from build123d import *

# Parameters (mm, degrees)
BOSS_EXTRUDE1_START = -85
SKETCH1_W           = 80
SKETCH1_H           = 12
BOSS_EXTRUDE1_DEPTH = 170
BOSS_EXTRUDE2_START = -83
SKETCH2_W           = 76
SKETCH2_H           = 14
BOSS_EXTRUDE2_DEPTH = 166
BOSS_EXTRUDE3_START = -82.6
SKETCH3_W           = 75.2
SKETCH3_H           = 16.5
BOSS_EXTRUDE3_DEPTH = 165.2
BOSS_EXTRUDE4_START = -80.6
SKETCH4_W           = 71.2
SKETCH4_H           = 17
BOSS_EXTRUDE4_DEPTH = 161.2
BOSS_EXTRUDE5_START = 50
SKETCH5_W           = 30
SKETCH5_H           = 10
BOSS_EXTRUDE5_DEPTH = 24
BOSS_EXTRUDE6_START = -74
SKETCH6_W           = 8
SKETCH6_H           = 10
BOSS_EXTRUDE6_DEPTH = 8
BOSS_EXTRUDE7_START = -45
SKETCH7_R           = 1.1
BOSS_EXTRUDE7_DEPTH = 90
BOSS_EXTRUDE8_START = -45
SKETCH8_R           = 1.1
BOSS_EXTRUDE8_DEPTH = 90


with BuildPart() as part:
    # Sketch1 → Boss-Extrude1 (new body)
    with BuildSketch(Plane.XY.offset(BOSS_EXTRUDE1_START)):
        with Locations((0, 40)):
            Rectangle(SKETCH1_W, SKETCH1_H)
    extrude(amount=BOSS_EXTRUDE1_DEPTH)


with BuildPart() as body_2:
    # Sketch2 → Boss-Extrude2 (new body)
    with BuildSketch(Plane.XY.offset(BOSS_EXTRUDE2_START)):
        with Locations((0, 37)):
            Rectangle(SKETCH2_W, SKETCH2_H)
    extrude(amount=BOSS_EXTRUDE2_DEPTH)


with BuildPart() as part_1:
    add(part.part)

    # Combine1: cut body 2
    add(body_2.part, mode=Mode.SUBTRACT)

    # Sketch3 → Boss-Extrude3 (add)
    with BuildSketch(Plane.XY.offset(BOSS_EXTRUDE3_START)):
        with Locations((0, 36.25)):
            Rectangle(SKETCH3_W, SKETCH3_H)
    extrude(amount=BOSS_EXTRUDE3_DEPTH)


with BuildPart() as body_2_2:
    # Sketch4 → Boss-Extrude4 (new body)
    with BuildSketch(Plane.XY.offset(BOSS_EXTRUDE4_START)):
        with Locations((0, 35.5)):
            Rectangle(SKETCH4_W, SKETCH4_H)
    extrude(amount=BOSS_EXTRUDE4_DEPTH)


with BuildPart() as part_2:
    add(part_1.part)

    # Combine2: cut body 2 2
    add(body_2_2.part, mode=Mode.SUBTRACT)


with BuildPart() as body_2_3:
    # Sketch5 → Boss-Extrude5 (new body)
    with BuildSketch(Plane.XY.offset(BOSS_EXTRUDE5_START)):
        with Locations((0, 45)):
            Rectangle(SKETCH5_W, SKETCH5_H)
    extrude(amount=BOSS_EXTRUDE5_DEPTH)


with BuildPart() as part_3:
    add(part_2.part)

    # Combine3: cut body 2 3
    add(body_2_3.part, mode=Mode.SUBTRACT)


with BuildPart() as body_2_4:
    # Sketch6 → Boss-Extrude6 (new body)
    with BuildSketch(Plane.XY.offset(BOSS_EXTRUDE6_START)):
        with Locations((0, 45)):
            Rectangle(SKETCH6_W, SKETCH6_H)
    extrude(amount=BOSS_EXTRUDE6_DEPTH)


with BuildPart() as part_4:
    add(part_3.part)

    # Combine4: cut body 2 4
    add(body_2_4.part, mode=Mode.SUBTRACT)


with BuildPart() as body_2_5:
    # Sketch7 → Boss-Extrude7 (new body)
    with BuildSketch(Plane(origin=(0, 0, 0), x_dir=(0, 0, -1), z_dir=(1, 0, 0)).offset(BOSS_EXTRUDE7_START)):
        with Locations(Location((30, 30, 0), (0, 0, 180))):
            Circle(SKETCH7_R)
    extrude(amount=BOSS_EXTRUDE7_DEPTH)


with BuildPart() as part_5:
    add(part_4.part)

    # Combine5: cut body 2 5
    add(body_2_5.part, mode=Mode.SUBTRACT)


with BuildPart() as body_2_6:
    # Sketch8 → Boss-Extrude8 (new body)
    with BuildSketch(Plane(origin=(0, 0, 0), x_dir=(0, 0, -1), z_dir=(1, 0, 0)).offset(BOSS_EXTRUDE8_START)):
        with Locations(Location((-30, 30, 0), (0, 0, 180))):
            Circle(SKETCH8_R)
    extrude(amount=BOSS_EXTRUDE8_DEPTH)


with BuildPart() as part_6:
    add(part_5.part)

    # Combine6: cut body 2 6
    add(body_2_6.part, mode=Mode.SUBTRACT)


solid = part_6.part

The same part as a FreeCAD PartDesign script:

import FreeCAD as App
import Part
import Sketcher

doc = App.newDocument("Part")
body = doc.addObject("PartDesign::Body", "Body")

sketch1 = body.newObject("Sketcher::SketchObject", "Sketch")
sketch1.AttachmentSupport = (doc.getObject("XY_Plane"), [""])
sketch1.MapMode = "FlatFace"
sketch1.AttachmentOffset = App.Placement(App.Vector(0, 0, -85), App.Rotation())
sketch1.addGeometry([
    Part.LineSegment(App.Vector(-40, 46, 0), App.Vector(-40, 34, 0)),
    Part.LineSegment(App.Vector(-40, 34, 0), App.Vector(40, 34, 0)),
    Part.LineSegment(App.Vector(40, 34, 0), App.Vector(40, 46, 0)),
    Part.LineSegment(App.Vector(40, 46, 0), App.Vector(-40, 46, 0)),
], False)
sketch1.addConstraint([
    Sketcher.Constraint("Coincident", 0, 2, 1, 1),
    Sketcher.Constraint("Coincident", 1, 2, 2, 1),
    Sketcher.Constraint("Coincident", 2, 2, 3, 1),
    Sketcher.Constraint("Coincident", 3, 2, 0, 1),
    Sketcher.Constraint("Vertical", 0),
    Sketcher.Constraint("Horizontal", 1),
    Sketcher.Constraint("Vertical", 2),
    Sketcher.Constraint("Horizontal", 3),
    Sketcher.Constraint("DistanceX", 1, 1, 1, 2, 80.0),
    Sketcher.Constraint("DistanceY", 0, 2, 0, 1, 12.0),
    Sketcher.Constraint("DistanceX", 0, 2, -1, 1, 40.0),
    Sketcher.Constraint("DistanceY", -1, 1, 0, 2, 34.0),
])
pad1 = body.newObject("PartDesign::Pad", "Pad")
pad1.Profile = sketch1
pad1.Length = 170
body2 = doc.addObject("PartDesign::Body", "Body001")

sketch2 = body2.newObject("Sketcher::SketchObject", "Sketch001")
sketch2.AttachmentSupport = (doc.getObject("XY_Plane001"), [""])
sketch2.MapMode = "FlatFace"
sketch2.AttachmentOffset = App.Placement(App.Vector(0, 0, -83), App.Rotation())
sketch2.addGeometry([
    Part.LineSegment(App.Vector(-38, 44, 0), App.Vector(-38, 30, 0)),
    Part.LineSegment(App.Vector(-38, 30, 0), App.Vector(38, 30, 0)),
    Part.LineSegment(App.Vector(38, 30, 0), App.Vector(38, 44, 0)),
    Part.LineSegment(App.Vector(38, 44, 0), App.Vector(-38, 44, 0)),
], False)
sketch2.addConstraint([
    Sketcher.Constraint("Coincident", 0, 2, 1, 1),
    Sketcher.Constraint("Coincident", 1, 2, 2, 1),
    Sketcher.Constraint("Coincident", 2, 2, 3, 1),
    Sketcher.Constraint("Coincident", 3, 2, 0, 1),
    Sketcher.Constraint("Vertical", 0),
    Sketcher.Constraint("Horizontal", 1),
    Sketcher.Constraint("Vertical", 2),
    Sketcher.Constraint("Horizontal", 3),
    Sketcher.Constraint("DistanceX", 1, 1, 1, 2, 76.0),
    Sketcher.Constraint("DistanceY", 0, 2, 0, 1, 14.0),
    Sketcher.Constraint("DistanceX", 0, 2, -1, 1, 38.0),
    Sketcher.Constraint("DistanceY", -1, 1, 0, 2, 30.0),
])
pad2 = body2.newObject("PartDesign::Pad", "Pad001")
pad2.Profile = sketch2
pad2.Length = 166
doc.recompute()

boolean = body.newObject("PartDesign::Boolean", "Boolean")
boolean.Type = "Cut"
boolean.addObjects([body2])

sketch3 = body.newObject("Sketcher::SketchObject", "Sketch002")
sketch3.AttachmentSupport = (doc.getObject("XY_Plane"), [""])
sketch3.MapMode = "FlatFace"
sketch3.AttachmentOffset = App.Placement(App.Vector(0, 0, -82.6), App.Rotation())
sketch3.addGeometry([
    Part.LineSegment(App.Vector(-38, 44, 0), App.Vector(-38, 28, 0)),
    Part.LineSegment(App.Vector(-38, 28, 0), App.Vector(38, 28, 0)),
    Part.LineSegment(App.Vector(38, 28, 0), App.Vector(38, 44, 0)),
    Part.LineSegment(App.Vector(38, 44, 0), App.Vector(-38, 44, 0)),
], False)
sketch3.addConstraint([
    Sketcher.Constraint("Coincident", 0, 2, 1, 1),
    Sketcher.Constraint("Coincident", 1, 2, 2, 1),
    Sketcher.Constraint("Coincident", 2, 2, 3, 1),
    Sketcher.Constraint("Coincident", 3, 2, 0, 1),
    Sketcher.Constraint("Vertical", 0),
    Sketcher.Constraint("Horizontal", 1),
    Sketcher.Constraint("Vertical", 2),
    Sketcher.Constraint("Horizontal", 3),
    Sketcher.Constraint("DistanceX", 1, 1, 1, 2, 75.2),
    Sketcher.Constraint("DistanceY", 0, 2, 0, 1, 16.5),
    Sketcher.Constraint("DistanceY", -1, 1, 0, 2, 28.0),
    Sketcher.Constraint("DistanceX", 0, 2, -1, 1, 37.6),
])
pad3 = body.newObject("PartDesign::Pad", "Pad002")
pad3.Profile = sketch3
pad3.Length = 165.2
body3 = doc.addObject("PartDesign::Body", "Body002")

sketch4 = body3.newObject("Sketcher::SketchObject", "Sketch003")
sketch4.AttachmentSupport = (doc.getObject("XY_Plane002"), [""])
sketch4.MapMode = "FlatFace"
sketch4.AttachmentOffset = App.Placement(App.Vector(0, 0, -80.6), App.Rotation())
sketch4.addGeometry([
    Part.LineSegment(App.Vector(-36, 44, 0), App.Vector(-36, 27, 0)),
    Part.LineSegment(App.Vector(-36, 27, 0), App.Vector(36, 27, 0)),
    Part.LineSegment(App.Vector(36, 27, 0), App.Vector(36, 44, 0)),
    Part.LineSegment(App.Vector(36, 44, 0), App.Vector(-36, 44, 0)),
], False)
sketch4.addConstraint([
    Sketcher.Constraint("Coincident", 0, 2, 1, 1),
    Sketcher.Constraint("Coincident", 1, 2, 2, 1),
    Sketcher.Constraint("Coincident", 2, 2, 3, 1),
    Sketcher.Constraint("Coincident", 3, 2, 0, 1),
    Sketcher.Constraint("Vertical", 0),
    Sketcher.Constraint("Horizontal", 1),
    Sketcher.Constraint("Vertical", 2),
    Sketcher.Constraint("Horizontal", 3),
    Sketcher.Constraint("DistanceY", 0, 2, 0, 1, 17.0),
    Sketcher.Constraint("DistanceX", 1, 1, 1, 2, 71.2),
    Sketcher.Constraint("DistanceY", -1, 1, 0, 2, 27.0),
    Sketcher.Constraint("DistanceX", 0, 2, -1, 1, 35.6),
])
pad4 = body3.newObject("PartDesign::Pad", "Pad003")
pad4.Profile = sketch4
pad4.Length = 161.2
doc.recompute()

boolean2 = body.newObject("PartDesign::Boolean", "Boolean001")
boolean2.Type = "Cut"
boolean2.addObjects([body3])
body4 = doc.addObject("PartDesign::Body", "Body003")

sketch5 = body4.newObject("Sketcher::SketchObject", "Sketch004")
sketch5.AttachmentSupport = (doc.getObject("XY_Plane003"), [""])
sketch5.MapMode = "FlatFace"
sketch5.AttachmentOffset = App.Placement(App.Vector(0, 0, 50), App.Rotation())
sketch5.addGeometry([
    Part.LineSegment(App.Vector(-15, 50, 0), App.Vector(-15, 40, 0)),
    Part.LineSegment(App.Vector(-15, 40, 0), App.Vector(15, 40, 0)),
    Part.LineSegment(App.Vector(15, 40, 0), App.Vector(15, 50, 0)),
    Part.LineSegment(App.Vector(15, 50, 0), App.Vector(-15, 50, 0)),
], False)
sketch5.addConstraint([
    Sketcher.Constraint("Coincident", 0, 2, 1, 1),
    Sketcher.Constraint("Coincident", 1, 2, 2, 1),
    Sketcher.Constraint("Coincident", 2, 2, 3, 1),
    Sketcher.Constraint("Coincident", 3, 2, 0, 1),
    Sketcher.Constraint("Vertical", 0),
    Sketcher.Constraint("Horizontal", 1),
    Sketcher.Constraint("Vertical", 2),
    Sketcher.Constraint("Horizontal", 3),
    Sketcher.Constraint("DistanceX", 1, 1, 1, 2, 30.0),
    Sketcher.Constraint("DistanceY", 0, 2, 0, 1, 10.0),
    Sketcher.Constraint("DistanceX", 0, 2, -1, 1, 15.0),
    Sketcher.Constraint("DistanceY", -1, 1, 0, 2, 40.0),
])
pad5 = body4.newObject("PartDesign::Pad", "Pad004")
pad5.Profile = sketch5
pad5.Length = 24
doc.recompute()

boolean3 = body.newObject("PartDesign::Boolean", "Boolean002")
boolean3.Type = "Cut"
boolean3.addObjects([body4])
body5 = doc.addObject("PartDesign::Body", "Body004")

sketch6 = body5.newObject("Sketcher::SketchObject", "Sketch005")
sketch6.AttachmentSupport = (doc.getObject("XY_Plane004"), [""])
sketch6.MapMode = "FlatFace"
sketch6.AttachmentOffset = App.Placement(App.Vector(0, 0, -74), App.Rotation())
sketch6.addGeometry([
    Part.LineSegment(App.Vector(-4, 50, 0), App.Vector(-4, 40, 0)),
    Part.LineSegment(App.Vector(-4, 40, 0), App.Vector(4, 40, 0)),
    Part.LineSegment(App.Vector(4, 40, 0), App.Vector(4, 50, 0)),
    Part.LineSegment(App.Vector(4, 50, 0), App.Vector(-4, 50, 0)),
], False)
sketch6.addConstraint([
    Sketcher.Constraint("Coincident", 0, 2, 1, 1),
    Sketcher.Constraint("Coincident", 1, 2, 2, 1),
    Sketcher.Constraint("Coincident", 2, 2, 3, 1),
    Sketcher.Constraint("Coincident", 3, 2, 0, 1),
    Sketcher.Constraint("Vertical", 0),
    Sketcher.Constraint("Horizontal", 1),
    Sketcher.Constraint("Vertical", 2),
    Sketcher.Constraint("Horizontal", 3),
    Sketcher.Constraint("DistanceX", 1, 1, 1, 2, 8.0),
    Sketcher.Constraint("DistanceY", 0, 2, 0, 1, 10.0),
    Sketcher.Constraint("DistanceX", 0, 2, -1, 1, 4.0),
    Sketcher.Constraint("DistanceY", -1, 1, 0, 2, 40.0),
])
pad6 = body5.newObject("PartDesign::Pad", "Pad005")
pad6.Profile = sketch6
pad6.Length = 8
doc.recompute()

boolean4 = body.newObject("PartDesign::Boolean", "Boolean003")
boolean4.Type = "Cut"
boolean4.addObjects([body5])
body6 = doc.addObject("PartDesign::Body", "Body005")

sketch7 = body6.newObject("Sketcher::SketchObject", "Sketch006")
sketch7.AttachmentSupport = (doc.getObject("YZ_Plane005"), [""])
sketch7.MapMode = "FlatFace"
sketch7.AttachmentOffset = App.Placement(App.Vector(0, 0, -45), App.Rotation())
sketch7.addGeometry(Part.Circle(App.Vector(30, -30, 0), App.Vector(0, 0, 1), 1.1), False)
sketch7.addConstraint([
    Sketcher.Constraint("Diameter", 0, 2.2),
    Sketcher.Constraint("DistanceX", -1, 1, 0, 3, 30.0),
    Sketcher.Constraint("DistanceY", 0, 3, -1, 1, 30.0),
])
pad7 = body6.newObject("PartDesign::Pad", "Pad006")
pad7.Profile = sketch7
pad7.Length = 90
doc.recompute()

boolean5 = body.newObject("PartDesign::Boolean", "Boolean004")
boolean5.Type = "Cut"
boolean5.addObjects([body6])
body7 = doc.addObject("PartDesign::Body", "Body006")

sketch8 = body7.newObject("Sketcher::SketchObject", "Sketch007")
sketch8.AttachmentSupport = (doc.getObject("YZ_Plane006"), [""])
sketch8.MapMode = "FlatFace"
sketch8.AttachmentOffset = App.Placement(App.Vector(0, 0, -45), App.Rotation())
sketch8.addGeometry(Part.Circle(App.Vector(30, 30, 0), App.Vector(0, 0, 1), 1.1), False)
sketch8.addConstraint([
    Sketcher.Constraint("Diameter", 0, 2.2),
    Sketcher.Constraint("DistanceX", -1, 1, 0, 3, 30.0),
    Sketcher.Constraint("DistanceY", -1, 1, 0, 3, 30.0),
])
pad8 = body7.newObject("PartDesign::Pad", "Pad007")
pad8.Profile = sketch8
pad8.Length = 90
doc.recompute()

boolean6 = body.newObject("PartDesign::Boolean", "Boolean005")
boolean6.Type = "Cut"
boolean6.addObjects([body7])

doc.recompute()
